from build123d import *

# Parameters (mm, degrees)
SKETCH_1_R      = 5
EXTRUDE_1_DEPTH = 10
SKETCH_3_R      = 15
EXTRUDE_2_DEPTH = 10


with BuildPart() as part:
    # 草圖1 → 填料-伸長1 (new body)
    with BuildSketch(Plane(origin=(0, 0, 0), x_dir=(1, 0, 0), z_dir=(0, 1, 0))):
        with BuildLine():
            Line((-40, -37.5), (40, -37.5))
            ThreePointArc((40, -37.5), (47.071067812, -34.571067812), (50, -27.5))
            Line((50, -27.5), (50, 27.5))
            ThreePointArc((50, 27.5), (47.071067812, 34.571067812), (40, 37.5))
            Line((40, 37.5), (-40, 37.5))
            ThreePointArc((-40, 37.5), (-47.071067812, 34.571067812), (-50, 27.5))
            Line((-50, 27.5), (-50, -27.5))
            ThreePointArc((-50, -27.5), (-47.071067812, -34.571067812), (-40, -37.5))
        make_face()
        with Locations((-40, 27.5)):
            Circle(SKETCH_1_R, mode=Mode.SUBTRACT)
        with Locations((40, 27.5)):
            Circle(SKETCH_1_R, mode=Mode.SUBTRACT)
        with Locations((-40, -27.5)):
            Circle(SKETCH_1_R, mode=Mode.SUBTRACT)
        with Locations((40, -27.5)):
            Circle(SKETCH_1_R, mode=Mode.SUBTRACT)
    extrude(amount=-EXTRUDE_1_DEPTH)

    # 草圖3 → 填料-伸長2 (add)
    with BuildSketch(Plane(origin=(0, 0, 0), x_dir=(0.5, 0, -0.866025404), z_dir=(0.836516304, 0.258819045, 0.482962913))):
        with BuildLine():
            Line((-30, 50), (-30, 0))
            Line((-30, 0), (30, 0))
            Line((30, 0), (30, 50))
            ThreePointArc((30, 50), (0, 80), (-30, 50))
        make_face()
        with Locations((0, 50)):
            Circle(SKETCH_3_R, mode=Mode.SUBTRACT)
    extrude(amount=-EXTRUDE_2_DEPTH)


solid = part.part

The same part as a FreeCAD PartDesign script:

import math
import FreeCAD as App
import Part
import Sketcher
from FreeCAD import Vector
Q = App.Units.Quantity

doc = App.newDocument("Part")
body = doc.addObject("PartDesign::Body", "Body")

sketch1 = doc.addObject("Sketcher::SketchObject", "Sketch")
body.addObject(sketch1)
sketch1.AttachmentSupport = (doc.XZ_Plane, [""])
sketch1.MapMode = "FlatFace"
sketch1.addGeometry([
    Part.LineSegment(Vector(-40, 38, 0), Vector(40, 38, 0)),
    Part.ArcOfCircle(Part.Circle(Vector(40, 28, 0), Vector(0, 0, 1), 10), math.radians(0), math.radians(90)),
    Part.LineSegment(Vector(50, 28, 0), Vector(50, -28, 0)),
    Part.ArcOfCircle(Part.Circle(Vector(40, -28, 0), Vector(0, 0, 1), 10), math.radians(-90), math.radians(0)),
    Part.LineSegment(Vector(40, -38, 0), Vector(-40, -38, 0)),
    Part.ArcOfCircle(Part.Circle(Vector(-40, -28, 0), Vector(0, 0, 1), 10), math.radians(180), math.radians(270)),
    Part.LineSegment(Vector(-50, -28, 0), Vector(-50, 28, 0)),
    Part.ArcOfCircle(Part.Circle(Vector(-40, 28, 0), Vector(0, 0, 1), 10), math.radians(90), math.radians(180)),
    Part.Circle(Vector(-40, 28, 0), Vector(0, 0, 1), 5),
    Part.Circle(Vector(40, 28, 0), Vector(0, 0, 1), 5),
    Part.Circle(Vector(-40, -28, 0), Vector(0, 0, 1), 5),
    Part.Circle(Vector(40, -28, 0), Vector(0, 0, 1), 5),
], False)
sketch1.addConstraint([
    Sketcher.Constraint("Tangent", 0, 2, 1, 2),
    Sketcher.Constraint("Tangent", 1, 1, 2, 1),
    Sketcher.Constraint("Tangent", 2, 2, 3, 2),
    Sketcher.Constraint("Tangent", 3, 1, 4, 1),
    Sketcher.Constraint("Tangent", 4, 2, 5, 2),
    Sketcher.Constraint("Tangent", 5, 1, 6, 1),
    Sketcher.Constraint("Tangent", 6, 2, 7, 2),
    Sketcher.Constraint("Tangent", 7, 1, 0, 1),
    Sketcher.Constraint("Horizontal", 0),
    Sketcher.Constraint("Vertical", 2),
    Sketcher.Constraint("Horizontal", 4),
    Sketcher.Constraint("Vertical", 6),
    Sketcher.Constraint("Coincident", 8, 3, 7, 3),
    Sketcher.Constraint("Coincident", 9, 3, 1, 3),
    Sketcher.Constraint("Coincident", 10, 3, 5, 3),
    Sketcher.Constraint("Coincident", 11, 3, 3, 3),
    Sketcher.Constraint("Equal", 1, 3),
    Sketcher.Constraint("Equal", 3, 5),
    Sketcher.Constraint("Equal", 5, 7),
    Sketcher.Constraint("Equal", 8, 9),
    Sketcher.Constraint("Equal", 9, 10),
    Sketcher.Constraint("Equal", 10, 11),
    Sketcher.Constraint("Symmetric", 1, 3, 5, 3, -1, 1),
    Sketcher.Constraint("Diameter", 8, Q("10 mm")),
    Sketcher.Constraint("Radius", 1, Q("10 mm")),
    Sketcher.Constraint("DistanceX", 0, 1, 0, 2, Q("80 mm")),
    Sketcher.Constraint("DistanceY", 2, 2, 2, 1, Q("55 mm")),
])
pad1 = doc.addObject("PartDesign::Pad", "Pad")
body.addObject(pad1)
pad1.Profile = sketch1
pad1.Length = 10

sketch2 = doc.addObject("Sketcher::SketchObject", "Sketch001")
body.addObject(sketch2)
sketch2.Placement = App.Placement(Vector(0, 0, 0), App.Rotation(Vector(0.5, 0, -0.866025404), Vector(-0.224143868, 0.965925827, -0.129409523), Vector(0.836516304, 0.258819045, 0.482962913), "ZXY"))
sketch2.addGeometry([
    Part.LineSegment(Vector(-30, 50, 0), Vector(-30, 0, 0)),
    Part.LineSegment(Vector(-30, 0, 0), Vector(30, 0, 0)),
    Part.LineSegment(Vector(30, 0, 0), Vector(30, 50, 0)),
    Part.ArcOfCircle(Part.Circle(Vector(0, 50, 0), Vector(0, 0, 1), 30), math.radians(0), math.radians(180)),
    Part.Circle(Vector(0, 50, 0), Vector(0, 0, 1), 15),
], False)
sketch2.addConstraint([
    Sketcher.Constraint("Coincident", 0, 2, 1, 1),
    Sketcher.Constraint("Coincident", 1, 2, 2, 1),
    Sketcher.Constraint("Tangent", 2, 2, 3, 1),
    Sketcher.Constraint("Tangent", 3, 2, 0, 1),
    Sketcher.Constraint("Vertical", 0),
    Sketcher.Constraint("Horizontal", 1),
    Sketcher.Constraint("Vertical", 2),
    Sketcher.Constraint("Coincident", 4, 3, 3, 3),
    Sketcher.Constraint("Symmetric", 0, 2, 1, 2, -1, 1),
    Sketcher.Constraint("Diameter", 4, Q("30 mm")),
    Sketcher.Constraint("Radius", 3, Q("30 mm")),
    Sketcher.Constraint("DistanceY", 0, 2, 0, 1, Q("50 mm")),
])
pad2 = doc.addObject("PartDesign::Pad", "Pad001")
body.addObject(pad2)
pad2.Profile = sketch2
pad2.Length = 10
pad2.Reversed = True

doc.recompute()
